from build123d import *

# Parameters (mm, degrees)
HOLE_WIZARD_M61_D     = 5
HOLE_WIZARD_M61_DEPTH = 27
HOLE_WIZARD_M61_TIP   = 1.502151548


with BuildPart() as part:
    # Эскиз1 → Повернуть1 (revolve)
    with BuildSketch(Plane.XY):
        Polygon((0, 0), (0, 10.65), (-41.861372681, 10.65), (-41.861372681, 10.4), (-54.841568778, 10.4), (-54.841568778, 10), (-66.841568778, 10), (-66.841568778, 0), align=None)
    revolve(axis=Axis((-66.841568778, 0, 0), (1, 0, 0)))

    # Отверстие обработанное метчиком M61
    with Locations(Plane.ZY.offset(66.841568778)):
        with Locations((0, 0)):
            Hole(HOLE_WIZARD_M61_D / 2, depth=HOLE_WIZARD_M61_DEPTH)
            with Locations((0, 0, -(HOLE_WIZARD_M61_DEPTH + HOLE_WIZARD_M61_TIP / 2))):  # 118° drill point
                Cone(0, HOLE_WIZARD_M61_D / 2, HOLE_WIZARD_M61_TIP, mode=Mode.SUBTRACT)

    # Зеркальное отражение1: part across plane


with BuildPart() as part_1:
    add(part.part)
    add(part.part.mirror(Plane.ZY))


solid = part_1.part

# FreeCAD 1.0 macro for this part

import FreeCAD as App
import Part
import Sketcher
from FreeCAD import Vector
Q = App.Units.Quantity


def add_polygon(sketch, points):
    """Adds a closed chain of lines whose ends are joined by coincident constraints."""
    first, n = sketch.GeometryCount, len(points)
    for a, b in zip(points, points[1:] + points[:1]):
        sketch.addGeometry(Part.LineSegment(App.Vector(*a, 0), App.Vector(*b, 0)), False)
    for i in range(n):
        sketch.addConstraint(Sketcher.Constraint("Coincident", first + i, 2, first + (i + 1) % n, 1))

doc = App.newDocument("Part")
params = doc.addObject("Spreadsheet::Sheet", "Params")
for row, (alias, value) in enumerate([
    ("sketch1_width", "12 mm"),
    ("sketch1_height", "10 mm"),
    ("sketch1_height2", "0.4 mm"),
    ("sketch1_height3", "10.65 mm"),
    ("revolution_angle", "360 deg"),
    ("sketch2_diameter", "5 mm"),
    ("hole_diameter", "5 mm"),
    ("hole_depth", "27 mm"),
], start=1):
    params.set(f"A{row}", alias)
    params.set(f"B{row}", "=" + value)
    params.setAlias(f"B{row}", alias)

body = doc.addObject("PartDesign::Body", "Body")

# Sketch on XY plane
sketch1 = body.newObject("Sketcher::SketchObject", "Sketch")
sketch1.AttachmentSupport = (doc.getObject("XY_Plane"), [""])
sketch1.MapMode = "FlatFace"
add_polygon(sketch1, [(0, 0), (0, 10.65), (-41.86, 10.65), (-41.86, 10.4), (-54.84, 10.4), (-54.84, 10), (-66.84, 10), (-66.84, 0)])  # lines 0-7
sketch1.addConstraint([
    Sketcher.Constraint("Vertical", 0),
    Sketcher.Constraint("Horizontal", 1),
    Sketcher.Constraint("Vertical", 2),
    Sketcher.Constraint("Horizontal", 3),
    Sketcher.Constraint("Vertical", 4),
    Sketcher.Constraint("Horizontal", 5),
    Sketcher.Constraint("Vertical", 6),
    Sketcher.Constraint("Horizontal", 7),
    Sketcher.Constraint("Coincident", 7, 2, -1, 1),
    Sketcher.Constraint("DistanceX", 5, 2, 5, 1, Q("12 mm")),
    Sketcher.Constraint("DistanceY", 6, 2, 6, 1, Q("10 mm")),
    Sketcher.Constraint("DistanceY", 4, 2, 4, 1, Q("0.4 mm")),
    Sketcher.Constraint("DistanceY", 0, 1, 0, 2, Q("10.65 mm")),
    Sketcher.Constraint("DistanceX", 7, 1, 7, 2, Q("66.841569 mm")),
    Sketcher.Constraint("DistanceX", 1, 2, 1, 1, Q("41.861373 mm")),
])
sketch1.setExpression("Constraints[17]", "Params.sketch1_width")
sketch1.setExpression("Constraints[18]", "Params.sketch1_height")
sketch1.setExpression("Constraints[19]", "Params.sketch1_height2")
sketch1.setExpression("Constraints[20]", "Params.sketch1_height3")
revolution = body.newObject("PartDesign::Revolution", "Revolution")
revolution.Profile = sketch1
revolution.ReferenceAxis = (sketch1, ["H_Axis"])
revolution.setExpression("Angle", "Params.revolution_angle")

# Sketch on YZ plane
sketch2 = body.newObject("Sketcher::SketchObject", "Sketch001")
sketch2.AttachmentSupport = (doc.getObject("YZ_Plane"), [""])
sketch2.MapMode = "FlatFace"
sketch2.AttachmentOffset = App.Placement(Vector(0, 0, -66.841569), App.Rotation())
sketch2.addGeometry(Part.Circle(Vector(0, 0, 0), Vector(0, 0, 1), 2.5), False)
sketch2.addConstraint([
    Sketcher.Constraint("Coincident", 0, 3, -1, 1),
    Sketcher.Constraint("Diameter", 0, Q("5 mm")),
])
sketch2.setExpression("Constraints[1]", "Params.sketch2_diameter")
doc.recompute()
hole = body.newObject("PartDesign::Hole", "Hole")
hole.Profile = sketch2
hole.ThreadType = "None"
hole.setExpression("Diameter", "Params.hole_diameter")
hole.DepthType = "Dimension"
hole.setExpression("Depth", "Params.hole_depth")
hole.DrillPoint = "Angled"
hole.DrillPointAngle = 118
hole.Reversed = True
body2 = doc.addObject("PartDesign::Body", "Body001")
doc.recompute()

body2.BaseFeature = body
doc.recompute()

mirroring = doc.addObject("Part::Mirroring", "Mirroring")
mirroring.Source = body
mirroring.Base = Vector(0, 0, 0)
mirroring.Normal = Vector(-1, 0, 0)
body3 = doc.addObject("PartDesign::Body", "Body002")
body3.BaseFeature = mirroring
boolean = body2.newObject("PartDesign::Boolean", "Boolean")
boolean.Type = "Fuse"
boolean.addObjects([body3])
doc.recompute()
mirroring.Visibility = False

doc.recompute()
